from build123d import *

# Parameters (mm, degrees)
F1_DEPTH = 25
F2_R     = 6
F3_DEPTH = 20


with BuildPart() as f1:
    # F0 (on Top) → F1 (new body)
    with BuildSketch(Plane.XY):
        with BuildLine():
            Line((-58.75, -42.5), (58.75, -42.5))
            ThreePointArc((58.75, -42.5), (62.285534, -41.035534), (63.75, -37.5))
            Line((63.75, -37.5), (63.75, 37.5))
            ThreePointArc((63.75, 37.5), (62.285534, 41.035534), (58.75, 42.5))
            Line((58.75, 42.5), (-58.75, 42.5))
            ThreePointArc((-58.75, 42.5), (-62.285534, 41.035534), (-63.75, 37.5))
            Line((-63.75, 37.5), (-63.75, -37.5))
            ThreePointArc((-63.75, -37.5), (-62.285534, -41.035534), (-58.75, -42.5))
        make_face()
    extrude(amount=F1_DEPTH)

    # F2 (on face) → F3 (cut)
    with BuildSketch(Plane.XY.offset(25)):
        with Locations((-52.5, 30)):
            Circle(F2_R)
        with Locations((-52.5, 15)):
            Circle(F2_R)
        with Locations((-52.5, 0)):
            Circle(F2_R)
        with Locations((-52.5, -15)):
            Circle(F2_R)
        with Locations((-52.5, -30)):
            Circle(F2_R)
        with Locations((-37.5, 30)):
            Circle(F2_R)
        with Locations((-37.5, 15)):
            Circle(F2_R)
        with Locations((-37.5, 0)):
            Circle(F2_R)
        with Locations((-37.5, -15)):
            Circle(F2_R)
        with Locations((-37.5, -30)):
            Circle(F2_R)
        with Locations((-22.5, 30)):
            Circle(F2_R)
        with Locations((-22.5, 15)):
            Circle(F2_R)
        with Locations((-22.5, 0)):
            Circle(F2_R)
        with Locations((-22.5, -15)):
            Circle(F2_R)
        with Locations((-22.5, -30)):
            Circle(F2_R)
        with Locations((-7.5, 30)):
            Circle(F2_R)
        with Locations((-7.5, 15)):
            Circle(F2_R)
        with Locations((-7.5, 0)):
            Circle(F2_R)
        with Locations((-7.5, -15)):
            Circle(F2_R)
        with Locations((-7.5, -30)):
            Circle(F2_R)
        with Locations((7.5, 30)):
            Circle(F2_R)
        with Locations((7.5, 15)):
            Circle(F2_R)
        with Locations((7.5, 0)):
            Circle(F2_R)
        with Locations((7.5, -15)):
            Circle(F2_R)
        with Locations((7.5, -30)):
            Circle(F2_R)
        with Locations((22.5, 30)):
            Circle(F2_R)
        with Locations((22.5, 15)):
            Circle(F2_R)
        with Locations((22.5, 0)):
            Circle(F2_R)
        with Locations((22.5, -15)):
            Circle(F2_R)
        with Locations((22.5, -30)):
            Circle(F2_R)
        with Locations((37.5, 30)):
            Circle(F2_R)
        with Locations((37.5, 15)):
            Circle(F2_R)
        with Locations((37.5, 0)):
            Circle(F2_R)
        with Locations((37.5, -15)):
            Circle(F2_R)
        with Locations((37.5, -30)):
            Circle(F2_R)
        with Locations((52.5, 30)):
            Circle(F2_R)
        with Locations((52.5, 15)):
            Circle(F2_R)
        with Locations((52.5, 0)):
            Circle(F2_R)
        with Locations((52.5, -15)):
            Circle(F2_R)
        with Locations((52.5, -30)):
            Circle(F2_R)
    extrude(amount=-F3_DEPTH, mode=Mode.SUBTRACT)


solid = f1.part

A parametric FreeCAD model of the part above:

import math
import FreeCAD as App
import Part
import Sketcher

doc = App.newDocument("Part")
body = doc.addObject("PartDesign::Body", "Body")

# Sketch on XY plane
sketch1 = doc.addObject("Sketcher::SketchObject", "Sketch")
body.addObject(sketch1)
sketch1.AttachmentSupport = (doc.XY_Plane, [""])
sketch1.MapMode = "FlatFace"
sketch1.addGeometry([
    Part.LineSegment(App.Vector(-58.8, -42.5, 0), App.Vector(58.8, -42.5, 0)),  # 0
    Part.ArcOfCircle(Part.Circle(App.Vector(58.8, -37.5, 0), App.Vector(0, 0, 1), 5), math.radians(-90), math.radians(0)),  # 1
    Part.LineSegment(App.Vector(63.8, -37.5, 0), App.Vector(63.8, 37.5, 0)),  # 2
    Part.ArcOfCircle(Part.Circle(App.Vector(58.8, 37.5, 0), App.Vector(0, 0, 1), 5), math.radians(0), math.radians(90)),  # 3
    Part.LineSegment(App.Vector(58.8, 42.5, 0), App.Vector(-58.8, 42.5, 0)),  # 4
    Part.ArcOfCircle(Part.Circle(App.Vector(-58.8, 37.5, 0), App.Vector(0, 0, 1), 5), math.radians(90), math.radians(180)),  # 5
    Part.LineSegment(App.Vector(-63.8, 37.5, 0), App.Vector(-63.8, -37.5, 0)),  # 6
    Part.ArcOfCircle(Part.Circle(App.Vector(-58.8, -37.5, 0), App.Vector(0, 0, 1), 5), math.radians(180), math.radians(270)),  # 7
], False)
sketch1.addConstraint([
    Sketcher.Constraint("Tangent", 0, 2, 1, 1),
    Sketcher.Constraint("Tangent", 1, 2, 2, 1),
    Sketcher.Constraint("Tangent", 2, 2, 3, 1),
    Sketcher.Constraint("Tangent", 3, 2, 4, 1),
    Sketcher.Constraint("Tangent", 4, 2, 5, 1),
    Sketcher.Constraint("Tangent", 5, 2, 6, 1),
    Sketcher.Constraint("Tangent", 6, 2, 7, 1),
    Sketcher.Constraint("Tangent", 7, 2, 0, 1),
    Sketcher.Constraint("Horizontal", 0),
    Sketcher.Constraint("Vertical", 2),
    Sketcher.Constraint("Horizontal", 4),
    Sketcher.Constraint("Vertical", 6),
    Sketcher.Constraint("Equal", 1, 3),
    Sketcher.Constraint("Equal", 3, 5),
    Sketcher.Constraint("Equal", 5, 7),
    Sketcher.Constraint("Symmetric", 1, 3, 5, 3, -1, 1),
    Sketcher.Constraint("Radius", 1, 5.0),
    Sketcher.Constraint("DistanceY", 2, 1, 2, 2, 75.0),
    Sketcher.Constraint("DistanceX", 0, 1, 0, 2, 117.5),
])
pad1 = doc.addObject("PartDesign::Pad", "Pad")
body.addObject(pad1)
pad1.Profile = sketch1
pad1.Length = 25

# Sketch on XY plane
sketch2 = doc.addObject("Sketcher::SketchObject", "Sketch001")
body.addObject(sketch2)
sketch2.AttachmentSupport = (doc.XY_Plane, [""])
sketch2.MapMode = "FlatFace"
sketch2.AttachmentOffset = App.Placement(App.Vector(0, 0, 25), App.Rotation())
sketch2.addGeometry([
    Part.Circle(App.Vector(-52, 30, 0), App.Vector(0, 0, 1), 6),  # 0
    Part.Circle(App.Vector(-52, 15, 0), App.Vector(0, 0, 1), 6),  # 1
    Part.Circle(App.Vector(-52, 0, 0), App.Vector(0, 0, 1), 6),  # 2
    Part.Circle(App.Vector(-52, -15, 0), App.Vector(0, 0, 1), 6),  # 3
    Part.Circle(App.Vector(-52, -30, 0), App.Vector(0, 0, 1), 6),  # 4
    Part.Circle(App.Vector(-38, 30, 0), App.Vector(0, 0, 1), 6),  # 5
    Part.Circle(App.Vector(-38, 15, 0), App.Vector(0, 0, 1), 6),  # 6
    Part.Circle(App.Vector(-38, 0, 0), App.Vector(0, 0, 1), 6),  # 7
    Part.Circle(App.Vector(-38, -15, 0), App.Vector(0, 0, 1), 6),  # 8
    Part.Circle(App.Vector(-38, -30, 0), App.Vector(0, 0, 1), 6),  # 9
    Part.Circle(App.Vector(-22, 30, 0), App.Vector(0, 0, 1), 6),  # 10
    Part.Circle(App.Vector(-22, 15, 0), App.Vector(0, 0, 1), 6),  # 11
    Part.Circle(App.Vector(-22, 0, 0), App.Vector(0, 0, 1), 6),  # 12
    Part.Circle(App.Vector(-22, -15, 0), App.Vector(0, 0, 1), 6),  # 13
    Part.Circle(App.Vector(-22, -30, 0), App.Vector(0, 0, 1), 6),  # 14
    Part.Circle(App.Vector(-8, 30, 0), App.Vector(0, 0, 1), 6),  # 15
    Part.Circle(App.Vector(-8, 15, 0), App.Vector(0, 0, 1), 6),  # 16
    Part.Circle(App.Vector(-8, 0, 0), App.Vector(0, 0, 1), 6),  # 17
    Part.Circle(App.Vector(-8, -15, 0), App.Vector(0, 0, 1), 6),  # 18
    Part.Circle(App.Vector(-8, -30, 0), App.Vector(0, 0, 1), 6),  # 19
    Part.Circle(App.Vector(8, 30, 0), App.Vector(0, 0, 1), 6),  # 20
    Part.Circle(App.Vector(8, 15, 0), App.Vector(0, 0, 1), 6),  # 21
    Part.Circle(App.Vector(8, 0, 0), App.Vector(0, 0, 1), 6),  # 22
    Part.Circle(App.Vector(8, -15, 0), App.Vector(0, 0, 1), 6),  # 23
    Part.Circle(App.Vector(8, -30, 0), App.Vector(0, 0, 1), 6),  # 24
    Part.Circle(App.Vector(22, 30, 0), App.Vector(0, 0, 1), 6),  # 25
    Part.Circle(App.Vector(22, 15, 0), App.Vector(0, 0, 1), 6),  # 26
    Part.Circle(App.Vector(22, 0, 0), App.Vector(0, 0, 1), 6),  # 27
    Part.Circle(App.Vector(22, -15, 0), App.Vector(0, 0, 1), 6),  # 28
    Part.Circle(App.Vector(22, -30, 0), App.Vector(0, 0, 1), 6),  # 29
    Part.Circle(App.Vector(38, 30, 0), App.Vector(0, 0, 1), 6),  # 30
    Part.Circle(App.Vector(38, 15, 0), App.Vector(0, 0, 1), 6),  # 31
    Part.Circle(App.Vector(38, 0, 0), App.Vector(0, 0, 1), 6),  # 32
    Part.Circle(App.Vector(38, -15, 0), App.Vector(0, 0, 1), 6),  # 33
    Part.Circle(App.Vector(38, -30, 0), App.Vector(0, 0, 1), 6),  # 34
    Part.Circle(App.Vector(52, 30, 0), App.Vector(0, 0, 1), 6),  # 35
    Part.Circle(App.Vector(52, 15, 0), App.Vector(0, 0, 1), 6),  # 36
    Part.Circle(App.Vector(52, 0, 0), App.Vector(0, 0, 1), 6),  # 37
    Part.Circle(App.Vector(52, -15, 0), App.Vector(0, 0, 1), 6),  # 38
    Part.Circle(App.Vector(52, -30, 0), App.Vector(0, 0, 1), 6),  # 39
], False)
sketch2.addConstraint([
    Sketcher.Constraint("Equal", 0, 1),
    Sketcher.Constraint("Equal", 1, 2),
    Sketcher.Constraint("Equal", 2, 3),
    Sketcher.Constraint("Equal", 3, 4),
    Sketcher.Constraint("Equal", 4, 5),
    Sketcher.Constraint("Equal", 5, 6),
    Sketcher.Constraint("Equal", 6, 7),
    Sketcher.Constraint("Equal", 7, 8),
    Sketcher.Constraint("Equal", 8, 9),
    Sketcher.Constraint("Equal", 9, 10),
    Sketcher.Constraint("Equal", 10, 11),
    Sketcher.Constraint("Equal", 11, 12),
    Sketcher.Constraint("Equal", 12, 13),
    Sketcher.Constraint("Equal", 13, 14),
    Sketcher.Constraint("Equal", 14, 15),
    Sketcher.Constraint("Equal", 15, 16),
    Sketcher.Constraint("Equal", 16, 17),
    Sketcher.Constraint("Equal", 17, 18),
    Sketcher.Constraint("Equal", 18, 19),
    Sketcher.Constraint("Equal", 19, 20),
    Sketcher.Constraint("Equal", 20, 21),
    Sketcher.Constraint("Equal", 21, 22),
    Sketcher.Constraint("Equal", 22, 23),
    Sketcher.Constraint("Equal", 23, 24),
    Sketcher.Constraint("Equal", 24, 25),
    Sketcher.Constraint("Equal", 25, 26),
    Sketcher.Constraint("Equal", 26, 27),
    Sketcher.Constraint("Equal", 27, 28),
    Sketcher.Constraint("Equal", 28, 29),
    Sketcher.Constraint("Equal", 29, 30),
    Sketcher.Constraint("Equal", 30, 31),
    Sketcher.Constraint("Equal", 31, 32),
    Sketcher.Constraint("Equal", 32, 33),
    Sketcher.Constraint("Equal", 33, 34),
    Sketcher.Constraint("Equal", 34, 35),
    Sketcher.Constraint("Equal", 35, 36),
    Sketcher.Constraint("Equal", 36, 37),
    Sketcher.Constraint("Equal", 37, 38),
    Sketcher.Constraint("Equal", 38, 39),
    Sketcher.Constraint("Symmetric", 19, 3, 20, 3, -1, 1),
    Sketcher.Constraint("Symmetric", 18, 3, 21, 3, -1, 1),
    Sketcher.Constraint("Symmetric", 17, 3, 22, 3, -1, 1),
    Sketcher.Constraint("Symmetric", 16, 3, 23, 3, -1, 1),
    Sketcher.Constraint("Symmetric", 15, 3, 24, 3, -1, 1),
    Sketcher.Constraint("Symmetric", 14, 3, 25, 3, -1, 1),
    Sketcher.Constraint("Symmetric", 13, 3, 26, 3, -1, 1),
    Sketcher.Constraint("Symmetric", 12, 3, 27, 3, -1, 1),
    Sketcher.Constraint("Symmetric", 11, 3, 28, 3, -1, 1),
    Sketcher.Constraint("Symmetric", 10, 3, 29, 3, -1, 1),
    Sketcher.Constraint("Symmetric", 9, 3, 30, 3, -1, 1),
    Sketcher.Constraint("Symmetric", 8, 3, 31, 3, -1, 1),
    Sketcher.Constraint("Symmetric", 7, 3, 32, 3, -1, 1),
    Sketcher.Constraint("Symmetric", 6, 3, 33, 3, -1, 1),
    Sketcher.Constraint("Symmetric", 5, 3, 34, 3, -1, 1),
    Sketcher.Constraint("Symmetric", 4, 3, 35, 3, -1, 1),
    Sketcher.Constraint("Symmetric", 3, 3, 36, 3, -1, 1),
    Sketcher.Constraint("Symmetric", 2, 3, 37, 3, -1, 1),
    Sketcher.Constraint("Symmetric", 1, 3, 38, 3, -1, 1),
    Sketcher.Constraint("Symmetric", 0, 3, 39, 3, -1, 1),
    Sketcher.Constraint("Symmetric", 15, 3, 20, 3, -2),
    Sketcher.Constraint("Symmetric", 16, 3, 21, 3, -2),
    Sketcher.Constraint("Symmetric", 10, 3, 25, 3, -2),
    Sketcher.Constraint("Symmetric", 11, 3, 26, 3, -2),
    Sketcher.Constraint("Symmetric", 5, 3, 30, 3, -2),
    Sketcher.Constraint("Symmetric", 6, 3, 31, 3, -2),
    Sketcher.Constraint("Symmetric", 0, 3, 35, 3, -2),
    Sketcher.Constraint("Symmetric", 1, 3, 36, 3, -2),
    Sketcher.Constraint("PointOnObject", 2, 3, -1),
    Sketcher.Constraint("PointOnObject", 7, 3, -1),
    Sketcher.Constraint("PointOnObject", 12, 3, -1),
    Sketcher.Constraint("PointOnObject", 17, 3, -1),
    Sketcher.Constraint("Horizontal", 0, 3, 5, 3),
    Sketcher.Constraint("Horizontal", 1, 3, 6, 3),
    Sketcher.Constraint("Horizontal", 5, 3, 10, 3),
    Sketcher.Constraint("Horizontal", 6, 3, 11, 3),
    Sketcher.Constraint("Horizontal", 10, 3, 15, 3),
    Sketcher.Constraint("Horizontal", 11, 3, 16, 3),
    Sketcher.Constraint("Vertical", 0, 3, 1, 3),
    Sketcher.Constraint("Vertical", 1, 3, 2, 3),
    Sketcher.Constraint("Vertical", 5, 3, 6, 3),
    Sketcher.Constraint("Vertical", 6, 3, 7, 3),
    Sketcher.Constraint("Vertical", 10, 3, 11, 3),
    Sketcher.Constraint("Vertical", 11, 3, 12, 3),
    Sketcher.Constraint("Vertical", 15, 3, 16, 3),
    Sketcher.Constraint("Vertical", 16, 3, 17, 3),
    Sketcher.Constraint("Diameter", 0, 12.0),
    Sketcher.Constraint("DistanceY", -1, 1, 0, 3, 30.0),
    Sketcher.Constraint("DistanceY", -1, 1, 1, 3, 15.0),
    Sketcher.Constraint("DistanceX", 0, 3, 5, 3, 15.0),
    Sketcher.Constraint("DistanceX", 5, 3, 10, 3, 15.0),
    Sketcher.Constraint("DistanceX", 10, 3, 15, 3, 15.0),
    Sketcher.Constraint("DistanceX", 15, 3, 20, 3, 15.0),
])
pocket1 = doc.addObject("PartDesign::Pocket", "Pocket")
body.addObject(pocket1)
pocket1.Profile = sketch2
pocket1.Length = 20

doc.recompute()
